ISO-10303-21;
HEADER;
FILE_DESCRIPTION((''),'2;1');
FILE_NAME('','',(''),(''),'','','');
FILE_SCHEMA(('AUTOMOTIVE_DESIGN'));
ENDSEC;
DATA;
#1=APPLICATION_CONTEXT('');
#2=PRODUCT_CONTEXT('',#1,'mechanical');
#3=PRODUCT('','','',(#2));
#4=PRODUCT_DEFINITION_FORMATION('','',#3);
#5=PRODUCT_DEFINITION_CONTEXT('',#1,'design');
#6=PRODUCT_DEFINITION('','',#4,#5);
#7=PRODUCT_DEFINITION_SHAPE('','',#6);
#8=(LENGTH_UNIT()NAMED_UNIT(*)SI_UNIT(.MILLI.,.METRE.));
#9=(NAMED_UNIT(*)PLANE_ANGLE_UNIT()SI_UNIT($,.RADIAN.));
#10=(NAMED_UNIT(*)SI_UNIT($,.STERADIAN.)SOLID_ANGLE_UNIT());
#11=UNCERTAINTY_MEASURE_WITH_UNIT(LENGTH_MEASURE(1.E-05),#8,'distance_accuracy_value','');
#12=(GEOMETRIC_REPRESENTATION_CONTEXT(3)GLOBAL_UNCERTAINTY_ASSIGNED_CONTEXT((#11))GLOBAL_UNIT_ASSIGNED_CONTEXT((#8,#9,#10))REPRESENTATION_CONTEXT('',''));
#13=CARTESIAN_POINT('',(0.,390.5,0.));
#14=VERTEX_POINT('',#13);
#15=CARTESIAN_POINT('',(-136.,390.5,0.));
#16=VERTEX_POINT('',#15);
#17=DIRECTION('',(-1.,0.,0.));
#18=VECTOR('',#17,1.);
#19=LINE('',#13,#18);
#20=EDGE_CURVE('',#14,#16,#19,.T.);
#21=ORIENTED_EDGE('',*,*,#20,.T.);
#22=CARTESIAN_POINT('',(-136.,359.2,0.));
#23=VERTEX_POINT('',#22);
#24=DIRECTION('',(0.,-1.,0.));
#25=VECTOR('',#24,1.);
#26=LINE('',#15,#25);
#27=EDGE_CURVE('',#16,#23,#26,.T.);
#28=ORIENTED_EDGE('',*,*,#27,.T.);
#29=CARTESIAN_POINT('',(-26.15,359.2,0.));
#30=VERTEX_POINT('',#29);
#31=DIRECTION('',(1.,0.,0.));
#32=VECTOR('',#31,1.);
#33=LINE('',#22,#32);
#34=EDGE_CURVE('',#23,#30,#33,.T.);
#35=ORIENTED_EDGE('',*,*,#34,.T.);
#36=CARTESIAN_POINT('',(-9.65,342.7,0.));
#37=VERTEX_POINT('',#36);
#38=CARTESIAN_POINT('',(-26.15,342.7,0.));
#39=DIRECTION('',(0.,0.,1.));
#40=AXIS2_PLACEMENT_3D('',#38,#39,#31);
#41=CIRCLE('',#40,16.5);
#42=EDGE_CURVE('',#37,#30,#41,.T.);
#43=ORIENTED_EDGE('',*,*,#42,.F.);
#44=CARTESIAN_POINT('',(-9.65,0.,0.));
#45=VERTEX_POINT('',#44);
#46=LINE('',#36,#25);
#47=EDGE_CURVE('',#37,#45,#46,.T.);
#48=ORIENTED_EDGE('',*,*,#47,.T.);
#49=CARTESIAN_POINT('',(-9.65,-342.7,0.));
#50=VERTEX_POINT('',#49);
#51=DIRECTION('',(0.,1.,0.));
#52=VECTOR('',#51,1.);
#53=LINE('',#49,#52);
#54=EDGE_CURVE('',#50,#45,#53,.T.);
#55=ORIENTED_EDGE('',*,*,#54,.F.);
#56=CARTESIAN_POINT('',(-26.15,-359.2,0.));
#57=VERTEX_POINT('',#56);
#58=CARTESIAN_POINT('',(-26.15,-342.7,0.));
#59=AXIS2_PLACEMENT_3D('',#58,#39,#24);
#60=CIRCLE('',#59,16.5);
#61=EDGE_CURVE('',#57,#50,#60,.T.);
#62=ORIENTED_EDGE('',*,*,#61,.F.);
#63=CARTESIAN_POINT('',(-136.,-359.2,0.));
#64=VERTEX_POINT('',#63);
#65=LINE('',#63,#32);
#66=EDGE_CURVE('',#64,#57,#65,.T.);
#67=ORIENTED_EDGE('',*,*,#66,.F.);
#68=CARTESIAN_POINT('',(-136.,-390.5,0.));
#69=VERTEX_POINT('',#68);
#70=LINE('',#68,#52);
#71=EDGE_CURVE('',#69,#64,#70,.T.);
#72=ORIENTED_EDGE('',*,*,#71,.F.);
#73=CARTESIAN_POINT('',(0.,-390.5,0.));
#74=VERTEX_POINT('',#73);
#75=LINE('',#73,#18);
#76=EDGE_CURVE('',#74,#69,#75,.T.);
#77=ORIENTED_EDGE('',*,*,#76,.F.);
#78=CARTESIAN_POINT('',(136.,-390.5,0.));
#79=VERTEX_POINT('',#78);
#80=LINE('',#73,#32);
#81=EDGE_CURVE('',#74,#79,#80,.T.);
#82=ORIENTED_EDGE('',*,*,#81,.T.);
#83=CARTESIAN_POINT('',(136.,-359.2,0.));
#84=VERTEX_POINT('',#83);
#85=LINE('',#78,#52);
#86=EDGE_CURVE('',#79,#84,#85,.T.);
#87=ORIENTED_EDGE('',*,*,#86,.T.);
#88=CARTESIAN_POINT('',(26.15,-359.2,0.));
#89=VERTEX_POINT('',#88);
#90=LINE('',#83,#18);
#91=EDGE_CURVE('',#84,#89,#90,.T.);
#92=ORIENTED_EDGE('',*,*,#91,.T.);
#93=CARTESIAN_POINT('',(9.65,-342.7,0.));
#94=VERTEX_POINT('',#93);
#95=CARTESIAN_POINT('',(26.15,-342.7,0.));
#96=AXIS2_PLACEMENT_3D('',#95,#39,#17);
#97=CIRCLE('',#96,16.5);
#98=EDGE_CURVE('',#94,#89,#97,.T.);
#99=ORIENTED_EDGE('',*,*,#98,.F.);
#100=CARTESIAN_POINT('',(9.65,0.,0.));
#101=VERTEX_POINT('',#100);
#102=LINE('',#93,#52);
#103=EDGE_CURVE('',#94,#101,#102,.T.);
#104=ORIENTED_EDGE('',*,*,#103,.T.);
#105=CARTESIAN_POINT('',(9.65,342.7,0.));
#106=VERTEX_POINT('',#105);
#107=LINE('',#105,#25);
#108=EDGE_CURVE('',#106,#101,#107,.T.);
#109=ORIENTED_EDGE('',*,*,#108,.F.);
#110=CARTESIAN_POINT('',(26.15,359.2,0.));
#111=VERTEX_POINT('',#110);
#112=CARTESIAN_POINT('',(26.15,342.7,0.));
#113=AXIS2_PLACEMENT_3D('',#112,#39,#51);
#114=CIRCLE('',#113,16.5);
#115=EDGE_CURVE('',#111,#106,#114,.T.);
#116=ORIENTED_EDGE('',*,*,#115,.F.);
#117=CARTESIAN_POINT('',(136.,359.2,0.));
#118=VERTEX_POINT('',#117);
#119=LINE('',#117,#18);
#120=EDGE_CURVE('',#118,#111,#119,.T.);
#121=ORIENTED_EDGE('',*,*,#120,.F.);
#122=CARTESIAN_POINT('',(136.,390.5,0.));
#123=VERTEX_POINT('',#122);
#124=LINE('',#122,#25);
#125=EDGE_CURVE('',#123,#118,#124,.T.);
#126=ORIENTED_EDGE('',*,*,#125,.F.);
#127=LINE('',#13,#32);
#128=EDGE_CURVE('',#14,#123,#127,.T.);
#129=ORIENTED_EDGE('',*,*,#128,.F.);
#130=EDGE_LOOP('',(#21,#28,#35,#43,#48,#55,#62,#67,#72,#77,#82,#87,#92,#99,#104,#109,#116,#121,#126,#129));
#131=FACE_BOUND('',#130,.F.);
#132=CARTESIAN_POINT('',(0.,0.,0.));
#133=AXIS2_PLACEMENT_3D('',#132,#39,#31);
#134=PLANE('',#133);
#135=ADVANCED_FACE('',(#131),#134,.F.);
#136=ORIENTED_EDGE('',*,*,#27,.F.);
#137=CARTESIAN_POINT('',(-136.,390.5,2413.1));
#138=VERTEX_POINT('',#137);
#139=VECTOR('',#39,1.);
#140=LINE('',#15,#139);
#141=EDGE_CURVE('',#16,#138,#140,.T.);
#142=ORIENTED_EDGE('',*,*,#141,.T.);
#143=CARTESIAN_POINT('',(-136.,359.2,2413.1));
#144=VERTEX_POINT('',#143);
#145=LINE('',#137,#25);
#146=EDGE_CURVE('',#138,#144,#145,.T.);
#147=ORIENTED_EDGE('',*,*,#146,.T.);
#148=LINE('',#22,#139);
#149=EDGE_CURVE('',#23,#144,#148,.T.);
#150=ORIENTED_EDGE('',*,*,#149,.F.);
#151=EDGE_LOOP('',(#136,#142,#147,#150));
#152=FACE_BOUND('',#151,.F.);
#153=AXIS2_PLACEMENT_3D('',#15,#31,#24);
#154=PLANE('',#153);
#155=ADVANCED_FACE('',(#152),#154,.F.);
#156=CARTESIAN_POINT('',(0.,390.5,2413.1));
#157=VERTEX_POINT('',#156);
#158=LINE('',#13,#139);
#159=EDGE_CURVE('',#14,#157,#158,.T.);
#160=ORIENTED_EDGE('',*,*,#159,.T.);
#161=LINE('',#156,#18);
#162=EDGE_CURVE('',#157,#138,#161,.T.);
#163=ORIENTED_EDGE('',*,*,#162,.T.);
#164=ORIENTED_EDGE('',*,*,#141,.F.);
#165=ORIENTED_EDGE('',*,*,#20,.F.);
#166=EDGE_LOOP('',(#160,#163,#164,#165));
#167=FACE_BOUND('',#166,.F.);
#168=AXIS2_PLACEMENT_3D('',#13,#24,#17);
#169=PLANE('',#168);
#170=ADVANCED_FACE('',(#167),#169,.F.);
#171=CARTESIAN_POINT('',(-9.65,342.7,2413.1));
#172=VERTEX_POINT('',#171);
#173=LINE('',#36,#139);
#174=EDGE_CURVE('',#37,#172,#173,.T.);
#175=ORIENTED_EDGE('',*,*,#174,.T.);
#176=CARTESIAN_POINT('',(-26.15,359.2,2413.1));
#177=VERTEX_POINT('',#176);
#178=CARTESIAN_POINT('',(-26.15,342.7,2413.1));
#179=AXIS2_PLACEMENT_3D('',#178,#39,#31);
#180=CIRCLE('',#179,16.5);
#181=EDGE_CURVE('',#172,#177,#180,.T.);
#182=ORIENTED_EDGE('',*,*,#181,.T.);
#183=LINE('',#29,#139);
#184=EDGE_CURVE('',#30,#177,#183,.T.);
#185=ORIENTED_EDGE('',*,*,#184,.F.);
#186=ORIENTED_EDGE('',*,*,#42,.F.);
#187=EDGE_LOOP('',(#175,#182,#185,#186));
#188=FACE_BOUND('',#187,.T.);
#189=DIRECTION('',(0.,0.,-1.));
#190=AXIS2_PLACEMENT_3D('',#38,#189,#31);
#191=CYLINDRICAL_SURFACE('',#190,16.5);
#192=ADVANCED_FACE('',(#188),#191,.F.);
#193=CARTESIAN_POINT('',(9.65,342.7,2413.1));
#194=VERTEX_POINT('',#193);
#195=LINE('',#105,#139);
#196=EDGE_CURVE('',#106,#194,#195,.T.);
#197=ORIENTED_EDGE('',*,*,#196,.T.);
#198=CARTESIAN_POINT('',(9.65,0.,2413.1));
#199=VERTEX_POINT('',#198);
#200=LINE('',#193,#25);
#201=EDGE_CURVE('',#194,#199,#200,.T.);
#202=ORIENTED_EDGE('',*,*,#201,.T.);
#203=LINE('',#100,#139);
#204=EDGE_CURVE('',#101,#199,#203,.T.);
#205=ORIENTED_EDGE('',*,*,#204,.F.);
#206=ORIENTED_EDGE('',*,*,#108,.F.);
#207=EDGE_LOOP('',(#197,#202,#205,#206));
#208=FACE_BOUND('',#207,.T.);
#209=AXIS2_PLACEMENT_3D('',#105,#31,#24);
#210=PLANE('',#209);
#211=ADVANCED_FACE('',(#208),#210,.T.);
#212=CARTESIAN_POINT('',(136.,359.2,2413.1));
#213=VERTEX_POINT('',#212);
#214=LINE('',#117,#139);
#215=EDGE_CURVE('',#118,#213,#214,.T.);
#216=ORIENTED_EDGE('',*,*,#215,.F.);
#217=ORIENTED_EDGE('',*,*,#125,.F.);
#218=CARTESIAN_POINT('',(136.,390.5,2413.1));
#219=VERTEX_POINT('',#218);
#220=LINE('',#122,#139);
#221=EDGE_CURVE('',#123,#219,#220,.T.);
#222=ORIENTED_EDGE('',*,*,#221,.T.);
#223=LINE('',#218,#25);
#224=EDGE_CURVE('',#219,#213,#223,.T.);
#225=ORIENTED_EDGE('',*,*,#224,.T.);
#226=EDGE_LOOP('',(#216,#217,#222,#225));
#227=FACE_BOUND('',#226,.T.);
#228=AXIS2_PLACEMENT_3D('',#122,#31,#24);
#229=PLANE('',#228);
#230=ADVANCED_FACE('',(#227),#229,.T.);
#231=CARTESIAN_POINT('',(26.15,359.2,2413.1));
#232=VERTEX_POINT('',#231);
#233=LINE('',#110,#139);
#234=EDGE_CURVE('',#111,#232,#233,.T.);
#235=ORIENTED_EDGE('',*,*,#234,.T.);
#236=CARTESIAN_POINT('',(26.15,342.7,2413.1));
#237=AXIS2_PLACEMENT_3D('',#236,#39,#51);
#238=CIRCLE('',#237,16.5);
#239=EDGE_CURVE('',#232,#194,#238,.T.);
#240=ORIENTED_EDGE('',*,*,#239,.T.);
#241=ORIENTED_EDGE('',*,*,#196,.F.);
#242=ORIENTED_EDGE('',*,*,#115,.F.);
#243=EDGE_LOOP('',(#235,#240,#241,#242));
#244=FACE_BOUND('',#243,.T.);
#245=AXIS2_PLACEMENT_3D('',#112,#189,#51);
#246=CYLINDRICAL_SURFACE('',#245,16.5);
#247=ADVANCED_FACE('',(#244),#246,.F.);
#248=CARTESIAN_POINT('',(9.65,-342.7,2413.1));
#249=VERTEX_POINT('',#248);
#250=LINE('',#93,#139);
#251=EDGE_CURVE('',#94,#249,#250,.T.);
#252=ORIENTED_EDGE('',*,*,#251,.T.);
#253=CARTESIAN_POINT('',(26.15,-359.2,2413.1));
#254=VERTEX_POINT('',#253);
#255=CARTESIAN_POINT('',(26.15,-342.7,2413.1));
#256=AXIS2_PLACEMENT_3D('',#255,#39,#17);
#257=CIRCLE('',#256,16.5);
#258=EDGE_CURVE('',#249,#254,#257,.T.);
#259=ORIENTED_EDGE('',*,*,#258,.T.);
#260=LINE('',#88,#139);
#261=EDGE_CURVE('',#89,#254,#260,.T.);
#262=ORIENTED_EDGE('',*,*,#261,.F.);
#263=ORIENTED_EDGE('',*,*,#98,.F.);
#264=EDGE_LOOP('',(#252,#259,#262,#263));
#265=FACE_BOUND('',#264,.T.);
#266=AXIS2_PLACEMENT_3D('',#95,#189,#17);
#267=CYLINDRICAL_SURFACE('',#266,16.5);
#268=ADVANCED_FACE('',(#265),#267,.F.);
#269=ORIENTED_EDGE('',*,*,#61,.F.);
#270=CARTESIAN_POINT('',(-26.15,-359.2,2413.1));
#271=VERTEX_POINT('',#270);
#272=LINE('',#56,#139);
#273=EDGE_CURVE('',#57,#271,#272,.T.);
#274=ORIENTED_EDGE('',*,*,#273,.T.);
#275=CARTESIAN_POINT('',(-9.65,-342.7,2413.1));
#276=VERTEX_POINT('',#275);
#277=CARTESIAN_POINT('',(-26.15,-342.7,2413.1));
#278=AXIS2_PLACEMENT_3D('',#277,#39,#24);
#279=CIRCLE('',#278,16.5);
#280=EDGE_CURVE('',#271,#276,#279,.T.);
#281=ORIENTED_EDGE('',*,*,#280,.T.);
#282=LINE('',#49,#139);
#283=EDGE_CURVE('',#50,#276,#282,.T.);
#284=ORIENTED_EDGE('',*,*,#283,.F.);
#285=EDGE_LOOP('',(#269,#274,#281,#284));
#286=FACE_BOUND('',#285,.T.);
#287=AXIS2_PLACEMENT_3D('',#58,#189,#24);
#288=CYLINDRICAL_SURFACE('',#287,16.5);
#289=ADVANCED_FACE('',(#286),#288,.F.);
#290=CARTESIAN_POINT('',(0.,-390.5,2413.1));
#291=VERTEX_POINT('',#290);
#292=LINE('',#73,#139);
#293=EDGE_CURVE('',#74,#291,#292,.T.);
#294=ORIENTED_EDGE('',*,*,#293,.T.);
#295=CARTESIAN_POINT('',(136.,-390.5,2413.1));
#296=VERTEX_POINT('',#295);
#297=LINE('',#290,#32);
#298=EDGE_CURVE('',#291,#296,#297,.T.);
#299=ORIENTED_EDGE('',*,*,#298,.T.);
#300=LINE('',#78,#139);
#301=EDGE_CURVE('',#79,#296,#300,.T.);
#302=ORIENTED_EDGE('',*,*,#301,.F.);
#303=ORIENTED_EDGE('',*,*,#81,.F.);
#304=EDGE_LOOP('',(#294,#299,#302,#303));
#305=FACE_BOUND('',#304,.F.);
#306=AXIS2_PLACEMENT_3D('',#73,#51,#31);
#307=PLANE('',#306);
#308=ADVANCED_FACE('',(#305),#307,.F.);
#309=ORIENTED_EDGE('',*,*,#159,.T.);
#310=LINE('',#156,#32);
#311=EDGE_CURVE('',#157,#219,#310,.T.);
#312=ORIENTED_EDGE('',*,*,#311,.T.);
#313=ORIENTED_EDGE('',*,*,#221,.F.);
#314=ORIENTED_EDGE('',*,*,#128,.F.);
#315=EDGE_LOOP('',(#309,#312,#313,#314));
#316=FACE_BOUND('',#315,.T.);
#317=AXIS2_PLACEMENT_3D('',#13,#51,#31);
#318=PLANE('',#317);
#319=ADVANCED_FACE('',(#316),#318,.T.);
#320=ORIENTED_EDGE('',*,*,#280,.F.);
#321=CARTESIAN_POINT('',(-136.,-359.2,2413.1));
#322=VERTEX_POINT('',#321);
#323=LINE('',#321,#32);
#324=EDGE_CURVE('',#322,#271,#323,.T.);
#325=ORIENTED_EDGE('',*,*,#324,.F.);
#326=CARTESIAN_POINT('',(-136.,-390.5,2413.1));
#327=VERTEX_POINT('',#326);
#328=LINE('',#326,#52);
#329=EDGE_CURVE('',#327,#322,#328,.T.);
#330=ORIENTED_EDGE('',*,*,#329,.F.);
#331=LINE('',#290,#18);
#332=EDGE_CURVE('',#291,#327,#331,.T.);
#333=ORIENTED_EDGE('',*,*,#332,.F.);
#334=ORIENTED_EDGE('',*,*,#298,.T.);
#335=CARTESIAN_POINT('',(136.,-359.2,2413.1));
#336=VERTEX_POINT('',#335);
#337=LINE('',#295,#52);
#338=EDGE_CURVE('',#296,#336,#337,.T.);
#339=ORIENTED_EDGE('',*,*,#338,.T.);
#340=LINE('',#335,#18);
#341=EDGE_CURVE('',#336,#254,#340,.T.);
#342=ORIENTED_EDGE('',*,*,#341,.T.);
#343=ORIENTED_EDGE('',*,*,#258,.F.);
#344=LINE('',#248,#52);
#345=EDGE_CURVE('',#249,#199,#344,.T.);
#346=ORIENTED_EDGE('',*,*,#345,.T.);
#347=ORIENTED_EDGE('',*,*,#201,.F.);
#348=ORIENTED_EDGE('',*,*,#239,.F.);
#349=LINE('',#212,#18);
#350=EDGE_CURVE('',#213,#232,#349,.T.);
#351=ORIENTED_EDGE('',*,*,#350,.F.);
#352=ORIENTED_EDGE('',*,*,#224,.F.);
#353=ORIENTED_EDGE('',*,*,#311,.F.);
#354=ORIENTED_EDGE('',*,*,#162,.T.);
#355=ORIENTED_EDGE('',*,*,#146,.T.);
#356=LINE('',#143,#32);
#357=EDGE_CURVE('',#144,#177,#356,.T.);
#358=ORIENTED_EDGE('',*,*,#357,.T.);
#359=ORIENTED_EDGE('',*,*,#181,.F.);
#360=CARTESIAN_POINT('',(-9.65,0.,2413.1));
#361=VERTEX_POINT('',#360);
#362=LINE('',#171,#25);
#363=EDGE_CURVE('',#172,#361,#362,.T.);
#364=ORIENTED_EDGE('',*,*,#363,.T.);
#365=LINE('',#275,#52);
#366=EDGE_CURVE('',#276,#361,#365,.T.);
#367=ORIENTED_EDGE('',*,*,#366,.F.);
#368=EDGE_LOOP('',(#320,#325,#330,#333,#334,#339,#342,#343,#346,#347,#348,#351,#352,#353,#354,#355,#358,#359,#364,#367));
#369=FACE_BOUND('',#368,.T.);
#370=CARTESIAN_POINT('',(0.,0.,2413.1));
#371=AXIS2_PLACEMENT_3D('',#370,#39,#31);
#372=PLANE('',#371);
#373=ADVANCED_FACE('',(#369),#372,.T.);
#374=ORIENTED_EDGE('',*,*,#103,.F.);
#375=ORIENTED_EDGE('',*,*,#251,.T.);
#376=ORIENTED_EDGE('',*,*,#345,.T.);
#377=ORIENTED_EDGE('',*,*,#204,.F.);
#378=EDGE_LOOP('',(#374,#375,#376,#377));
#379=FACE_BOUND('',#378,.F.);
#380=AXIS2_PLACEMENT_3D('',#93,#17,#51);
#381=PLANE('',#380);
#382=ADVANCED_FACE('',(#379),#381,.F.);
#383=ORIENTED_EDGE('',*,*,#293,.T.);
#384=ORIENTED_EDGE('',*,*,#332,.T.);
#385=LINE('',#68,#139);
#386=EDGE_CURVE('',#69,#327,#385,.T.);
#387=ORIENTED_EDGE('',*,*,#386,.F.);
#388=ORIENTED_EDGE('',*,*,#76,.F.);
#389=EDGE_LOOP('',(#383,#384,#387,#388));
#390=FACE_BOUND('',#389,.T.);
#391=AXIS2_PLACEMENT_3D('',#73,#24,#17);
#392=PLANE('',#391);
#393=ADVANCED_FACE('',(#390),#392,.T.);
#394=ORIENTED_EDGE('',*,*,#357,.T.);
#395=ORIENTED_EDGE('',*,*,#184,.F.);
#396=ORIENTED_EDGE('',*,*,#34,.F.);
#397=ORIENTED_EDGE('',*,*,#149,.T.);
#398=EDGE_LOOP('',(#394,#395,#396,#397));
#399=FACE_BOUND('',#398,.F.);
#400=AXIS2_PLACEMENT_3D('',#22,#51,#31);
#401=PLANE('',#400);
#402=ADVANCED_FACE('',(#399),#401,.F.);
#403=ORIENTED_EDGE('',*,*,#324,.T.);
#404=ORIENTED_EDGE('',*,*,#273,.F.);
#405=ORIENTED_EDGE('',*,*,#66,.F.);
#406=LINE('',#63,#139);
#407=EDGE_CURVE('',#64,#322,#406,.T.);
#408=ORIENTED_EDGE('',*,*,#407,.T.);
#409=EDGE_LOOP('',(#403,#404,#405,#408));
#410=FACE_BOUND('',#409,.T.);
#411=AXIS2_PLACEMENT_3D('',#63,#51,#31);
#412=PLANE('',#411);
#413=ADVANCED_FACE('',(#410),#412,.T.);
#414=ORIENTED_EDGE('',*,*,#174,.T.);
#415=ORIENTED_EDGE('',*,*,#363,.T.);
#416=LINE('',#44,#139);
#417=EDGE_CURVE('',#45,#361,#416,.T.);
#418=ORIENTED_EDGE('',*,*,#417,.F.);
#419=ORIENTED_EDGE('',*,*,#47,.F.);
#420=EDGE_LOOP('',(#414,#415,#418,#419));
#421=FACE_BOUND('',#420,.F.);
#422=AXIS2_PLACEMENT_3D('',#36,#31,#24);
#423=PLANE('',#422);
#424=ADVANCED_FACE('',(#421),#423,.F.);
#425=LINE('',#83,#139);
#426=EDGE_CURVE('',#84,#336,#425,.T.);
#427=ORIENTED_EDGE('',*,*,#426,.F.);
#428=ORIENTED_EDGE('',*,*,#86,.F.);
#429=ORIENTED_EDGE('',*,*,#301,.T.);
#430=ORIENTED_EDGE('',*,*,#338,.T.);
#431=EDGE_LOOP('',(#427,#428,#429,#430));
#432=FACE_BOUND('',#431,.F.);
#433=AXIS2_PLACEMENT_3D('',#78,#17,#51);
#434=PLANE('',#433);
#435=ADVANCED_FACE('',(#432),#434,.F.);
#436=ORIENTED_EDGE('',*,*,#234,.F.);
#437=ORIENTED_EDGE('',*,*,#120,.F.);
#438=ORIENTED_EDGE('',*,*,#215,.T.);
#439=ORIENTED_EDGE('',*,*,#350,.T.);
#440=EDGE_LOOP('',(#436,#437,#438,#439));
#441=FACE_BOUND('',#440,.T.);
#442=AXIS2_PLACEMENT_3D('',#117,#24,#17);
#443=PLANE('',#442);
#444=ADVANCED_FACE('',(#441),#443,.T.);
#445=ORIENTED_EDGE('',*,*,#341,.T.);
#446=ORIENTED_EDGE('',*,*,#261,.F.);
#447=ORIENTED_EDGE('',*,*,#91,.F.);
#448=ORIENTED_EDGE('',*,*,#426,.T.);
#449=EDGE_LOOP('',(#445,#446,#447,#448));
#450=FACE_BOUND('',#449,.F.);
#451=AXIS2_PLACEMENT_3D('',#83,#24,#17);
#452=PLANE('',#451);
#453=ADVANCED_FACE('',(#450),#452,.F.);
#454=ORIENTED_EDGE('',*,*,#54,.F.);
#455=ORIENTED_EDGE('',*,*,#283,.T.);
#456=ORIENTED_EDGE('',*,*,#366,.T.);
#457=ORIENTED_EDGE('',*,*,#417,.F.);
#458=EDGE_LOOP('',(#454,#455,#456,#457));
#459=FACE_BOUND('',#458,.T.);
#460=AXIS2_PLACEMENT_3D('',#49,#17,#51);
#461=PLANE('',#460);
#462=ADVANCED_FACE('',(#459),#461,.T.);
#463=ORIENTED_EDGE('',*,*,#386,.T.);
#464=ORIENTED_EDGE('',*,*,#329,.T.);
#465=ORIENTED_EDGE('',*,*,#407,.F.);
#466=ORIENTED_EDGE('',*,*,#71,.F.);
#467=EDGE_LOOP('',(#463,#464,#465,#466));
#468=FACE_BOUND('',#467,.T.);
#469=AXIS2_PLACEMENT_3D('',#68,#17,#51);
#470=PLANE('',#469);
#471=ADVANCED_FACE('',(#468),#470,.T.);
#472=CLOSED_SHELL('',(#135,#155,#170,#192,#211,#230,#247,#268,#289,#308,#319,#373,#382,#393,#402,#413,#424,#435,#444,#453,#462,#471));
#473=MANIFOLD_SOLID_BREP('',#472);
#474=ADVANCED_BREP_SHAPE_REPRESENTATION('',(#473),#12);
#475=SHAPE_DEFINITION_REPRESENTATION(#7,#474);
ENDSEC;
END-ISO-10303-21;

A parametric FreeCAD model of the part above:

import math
import FreeCAD as App
import Part
import Sketcher
from FreeCAD import Vector

doc = App.newDocument("Part")
params = doc.addObject("Spreadsheet::Sheet", "Params")
for row, (alias, value) in enumerate([
    ("sketch1_radius", "16.5 mm"),
    ("sketch1_height", "31.3 mm"),
    ("pad1_length", "2413.1 mm"),
], start=1):
    params.set(f"A{row}", alias)
    params.set(f"B{row}", "=" + value)
    params.setAlias(f"B{row}", alias)

body = doc.addObject("PartDesign::Body", "Body")

sketch1 = body.newObject("Sketcher::SketchObject", "Sketch")
sketch1.AttachmentSupport = (doc.getObject("XY_Plane"), [""])
sketch1.MapMode = "FlatFace"
sketch1.addGeometry([
    Part.LineSegment(Vector(-136, -359.2, 0), Vector(-136, -390.5, 0)),
    Part.LineSegment(Vector(-136, -390.5, 0), Vector(136, -390.5, 0)),
    Part.LineSegment(Vector(136, -390.5, 0), Vector(136, -359.2, 0)),
    Part.LineSegment(Vector(136, -359.2, 0), Vector(26.15, -359.2, 0)),
    Part.ArcOfCircle(Part.Circle(Vector(26.15, -342.7, 0), Vector(0, 0, 1), 16.5), math.radians(180), math.radians(270)),
    Part.LineSegment(Vector(9.65, -342.7, 0), Vector(9.65, 342.7, 0)),
    Part.ArcOfCircle(Part.Circle(Vector(26.15, 342.7, 0), Vector(0, 0, 1), 16.5), math.radians(90), math.radians(180)),
    Part.LineSegment(Vector(26.15, 359.2, 0), Vector(136, 359.2, 0)),
    Part.LineSegment(Vector(136, 359.2, 0), Vector(136, 390.5, 0)),
    Part.LineSegment(Vector(136, 390.5, 0), Vector(-136, 390.5, 0)),
    Part.LineSegment(Vector(-136, 390.5, 0), Vector(-136, 359.2, 0)),
    Part.LineSegment(Vector(-136, 359.2, 0), Vector(-26.15, 359.2, 0)),
    Part.ArcOfCircle(Part.Circle(Vector(-26.15, 342.7, 0), Vector(0, 0, 1), 16.5), math.radians(0), math.radians(90)),
    Part.LineSegment(Vector(-9.65, 342.7, 0), Vector(-9.65, -342.7, 0)),
    Part.ArcOfCircle(Part.Circle(Vector(-26.15, -342.7, 0), Vector(0, 0, 1), 16.5), math.radians(-90), math.radians(0)),
    Part.LineSegment(Vector(-26.15, -359.2, 0), Vector(-136, -359.2, 0)),
], False)
sketch1.addConstraint([
    Sketcher.Constraint("Coincident", 0, 2, 1, 1),
    Sketcher.Constraint("Coincident", 1, 2, 2, 1),
    Sketcher.Constraint("Coincident", 2, 2, 3, 1),
    Sketcher.Constraint("Tangent", 3, 2, 4, 2),
    Sketcher.Constraint("Tangent", 4, 1, 5, 1),
    Sketcher.Constraint("Tangent", 5, 2, 6, 2),
    Sketcher.Constraint("Tangent", 6, 1, 7, 1),
    Sketcher.Constraint("Coincident", 7, 2, 8, 1),
    Sketcher.Constraint("Coincident", 8, 2, 9, 1),
    Sketcher.Constraint("Coincident", 9, 2, 10, 1),
    Sketcher.Constraint("Coincident", 10, 2, 11, 1),
    Sketcher.Constraint("Tangent", 11, 2, 12, 2),
    Sketcher.Constraint("Tangent", 12, 1, 13, 1),
    Sketcher.Constraint("Tangent", 13, 2, 14, 2),
    Sketcher.Constraint("Tangent", 14, 1, 15, 1),
    Sketcher.Constraint("Coincident", 15, 2, 0, 1),
    Sketcher.Constraint("Vertical", 0),
    Sketcher.Constraint("Horizontal", 1),
    Sketcher.Constraint("Vertical", 2),
    Sketcher.Constraint("Horizontal", 3),
    Sketcher.Constraint("Vertical", 5),
    Sketcher.Constraint("Horizontal", 7),
    Sketcher.Constraint("Vertical", 8),
    Sketcher.Constraint("Horizontal", 9),
    Sketcher.Constraint("Vertical", 10),
    Sketcher.Constraint("Horizontal", 11),
    Sketcher.Constraint("Vertical", 13),
    Sketcher.Constraint("Horizontal", 15),
    Sketcher.Constraint("Equal", 4, 6),
    Sketcher.Constraint("Equal", 6, 12),
    Sketcher.Constraint("Equal", 12, 14),
    Sketcher.Constraint("Symmetric", 4, 3, 12, 3, -1, 1),
    Sketcher.Constraint("Symmetric", 0, 2, 8, 2, -1, 1),
    Sketcher.Constraint("Symmetric", 7, 2, 10, 2, -2),
    Sketcher.Constraint("Symmetric", 2, 2, 15, 2, -2),
    Sketcher.Constraint("Radius", 4, 16.5),
    Sketcher.Constraint("DistanceY", 0, 2, 0, 1, 31.3),
    Sketcher.Constraint("DistanceX", 0, 2, -1, 1, 136.0),
    Sketcher.Constraint("DistanceY", 0, 2, -1, 1, 390.5),
    Sketcher.Constraint("DistanceX", -1, 1, 4, 1, 9.65),
])
sketch1.setExpression("Constraints[35]", "Params.sketch1_radius")
sketch1.setExpression("Constraints[36]", "Params.sketch1_height")
pad1 = body.newObject("PartDesign::Pad", "Pad")
pad1.Profile = sketch1
pad1.setExpression("Length", "Params.pad1_length")

doc.recompute()
